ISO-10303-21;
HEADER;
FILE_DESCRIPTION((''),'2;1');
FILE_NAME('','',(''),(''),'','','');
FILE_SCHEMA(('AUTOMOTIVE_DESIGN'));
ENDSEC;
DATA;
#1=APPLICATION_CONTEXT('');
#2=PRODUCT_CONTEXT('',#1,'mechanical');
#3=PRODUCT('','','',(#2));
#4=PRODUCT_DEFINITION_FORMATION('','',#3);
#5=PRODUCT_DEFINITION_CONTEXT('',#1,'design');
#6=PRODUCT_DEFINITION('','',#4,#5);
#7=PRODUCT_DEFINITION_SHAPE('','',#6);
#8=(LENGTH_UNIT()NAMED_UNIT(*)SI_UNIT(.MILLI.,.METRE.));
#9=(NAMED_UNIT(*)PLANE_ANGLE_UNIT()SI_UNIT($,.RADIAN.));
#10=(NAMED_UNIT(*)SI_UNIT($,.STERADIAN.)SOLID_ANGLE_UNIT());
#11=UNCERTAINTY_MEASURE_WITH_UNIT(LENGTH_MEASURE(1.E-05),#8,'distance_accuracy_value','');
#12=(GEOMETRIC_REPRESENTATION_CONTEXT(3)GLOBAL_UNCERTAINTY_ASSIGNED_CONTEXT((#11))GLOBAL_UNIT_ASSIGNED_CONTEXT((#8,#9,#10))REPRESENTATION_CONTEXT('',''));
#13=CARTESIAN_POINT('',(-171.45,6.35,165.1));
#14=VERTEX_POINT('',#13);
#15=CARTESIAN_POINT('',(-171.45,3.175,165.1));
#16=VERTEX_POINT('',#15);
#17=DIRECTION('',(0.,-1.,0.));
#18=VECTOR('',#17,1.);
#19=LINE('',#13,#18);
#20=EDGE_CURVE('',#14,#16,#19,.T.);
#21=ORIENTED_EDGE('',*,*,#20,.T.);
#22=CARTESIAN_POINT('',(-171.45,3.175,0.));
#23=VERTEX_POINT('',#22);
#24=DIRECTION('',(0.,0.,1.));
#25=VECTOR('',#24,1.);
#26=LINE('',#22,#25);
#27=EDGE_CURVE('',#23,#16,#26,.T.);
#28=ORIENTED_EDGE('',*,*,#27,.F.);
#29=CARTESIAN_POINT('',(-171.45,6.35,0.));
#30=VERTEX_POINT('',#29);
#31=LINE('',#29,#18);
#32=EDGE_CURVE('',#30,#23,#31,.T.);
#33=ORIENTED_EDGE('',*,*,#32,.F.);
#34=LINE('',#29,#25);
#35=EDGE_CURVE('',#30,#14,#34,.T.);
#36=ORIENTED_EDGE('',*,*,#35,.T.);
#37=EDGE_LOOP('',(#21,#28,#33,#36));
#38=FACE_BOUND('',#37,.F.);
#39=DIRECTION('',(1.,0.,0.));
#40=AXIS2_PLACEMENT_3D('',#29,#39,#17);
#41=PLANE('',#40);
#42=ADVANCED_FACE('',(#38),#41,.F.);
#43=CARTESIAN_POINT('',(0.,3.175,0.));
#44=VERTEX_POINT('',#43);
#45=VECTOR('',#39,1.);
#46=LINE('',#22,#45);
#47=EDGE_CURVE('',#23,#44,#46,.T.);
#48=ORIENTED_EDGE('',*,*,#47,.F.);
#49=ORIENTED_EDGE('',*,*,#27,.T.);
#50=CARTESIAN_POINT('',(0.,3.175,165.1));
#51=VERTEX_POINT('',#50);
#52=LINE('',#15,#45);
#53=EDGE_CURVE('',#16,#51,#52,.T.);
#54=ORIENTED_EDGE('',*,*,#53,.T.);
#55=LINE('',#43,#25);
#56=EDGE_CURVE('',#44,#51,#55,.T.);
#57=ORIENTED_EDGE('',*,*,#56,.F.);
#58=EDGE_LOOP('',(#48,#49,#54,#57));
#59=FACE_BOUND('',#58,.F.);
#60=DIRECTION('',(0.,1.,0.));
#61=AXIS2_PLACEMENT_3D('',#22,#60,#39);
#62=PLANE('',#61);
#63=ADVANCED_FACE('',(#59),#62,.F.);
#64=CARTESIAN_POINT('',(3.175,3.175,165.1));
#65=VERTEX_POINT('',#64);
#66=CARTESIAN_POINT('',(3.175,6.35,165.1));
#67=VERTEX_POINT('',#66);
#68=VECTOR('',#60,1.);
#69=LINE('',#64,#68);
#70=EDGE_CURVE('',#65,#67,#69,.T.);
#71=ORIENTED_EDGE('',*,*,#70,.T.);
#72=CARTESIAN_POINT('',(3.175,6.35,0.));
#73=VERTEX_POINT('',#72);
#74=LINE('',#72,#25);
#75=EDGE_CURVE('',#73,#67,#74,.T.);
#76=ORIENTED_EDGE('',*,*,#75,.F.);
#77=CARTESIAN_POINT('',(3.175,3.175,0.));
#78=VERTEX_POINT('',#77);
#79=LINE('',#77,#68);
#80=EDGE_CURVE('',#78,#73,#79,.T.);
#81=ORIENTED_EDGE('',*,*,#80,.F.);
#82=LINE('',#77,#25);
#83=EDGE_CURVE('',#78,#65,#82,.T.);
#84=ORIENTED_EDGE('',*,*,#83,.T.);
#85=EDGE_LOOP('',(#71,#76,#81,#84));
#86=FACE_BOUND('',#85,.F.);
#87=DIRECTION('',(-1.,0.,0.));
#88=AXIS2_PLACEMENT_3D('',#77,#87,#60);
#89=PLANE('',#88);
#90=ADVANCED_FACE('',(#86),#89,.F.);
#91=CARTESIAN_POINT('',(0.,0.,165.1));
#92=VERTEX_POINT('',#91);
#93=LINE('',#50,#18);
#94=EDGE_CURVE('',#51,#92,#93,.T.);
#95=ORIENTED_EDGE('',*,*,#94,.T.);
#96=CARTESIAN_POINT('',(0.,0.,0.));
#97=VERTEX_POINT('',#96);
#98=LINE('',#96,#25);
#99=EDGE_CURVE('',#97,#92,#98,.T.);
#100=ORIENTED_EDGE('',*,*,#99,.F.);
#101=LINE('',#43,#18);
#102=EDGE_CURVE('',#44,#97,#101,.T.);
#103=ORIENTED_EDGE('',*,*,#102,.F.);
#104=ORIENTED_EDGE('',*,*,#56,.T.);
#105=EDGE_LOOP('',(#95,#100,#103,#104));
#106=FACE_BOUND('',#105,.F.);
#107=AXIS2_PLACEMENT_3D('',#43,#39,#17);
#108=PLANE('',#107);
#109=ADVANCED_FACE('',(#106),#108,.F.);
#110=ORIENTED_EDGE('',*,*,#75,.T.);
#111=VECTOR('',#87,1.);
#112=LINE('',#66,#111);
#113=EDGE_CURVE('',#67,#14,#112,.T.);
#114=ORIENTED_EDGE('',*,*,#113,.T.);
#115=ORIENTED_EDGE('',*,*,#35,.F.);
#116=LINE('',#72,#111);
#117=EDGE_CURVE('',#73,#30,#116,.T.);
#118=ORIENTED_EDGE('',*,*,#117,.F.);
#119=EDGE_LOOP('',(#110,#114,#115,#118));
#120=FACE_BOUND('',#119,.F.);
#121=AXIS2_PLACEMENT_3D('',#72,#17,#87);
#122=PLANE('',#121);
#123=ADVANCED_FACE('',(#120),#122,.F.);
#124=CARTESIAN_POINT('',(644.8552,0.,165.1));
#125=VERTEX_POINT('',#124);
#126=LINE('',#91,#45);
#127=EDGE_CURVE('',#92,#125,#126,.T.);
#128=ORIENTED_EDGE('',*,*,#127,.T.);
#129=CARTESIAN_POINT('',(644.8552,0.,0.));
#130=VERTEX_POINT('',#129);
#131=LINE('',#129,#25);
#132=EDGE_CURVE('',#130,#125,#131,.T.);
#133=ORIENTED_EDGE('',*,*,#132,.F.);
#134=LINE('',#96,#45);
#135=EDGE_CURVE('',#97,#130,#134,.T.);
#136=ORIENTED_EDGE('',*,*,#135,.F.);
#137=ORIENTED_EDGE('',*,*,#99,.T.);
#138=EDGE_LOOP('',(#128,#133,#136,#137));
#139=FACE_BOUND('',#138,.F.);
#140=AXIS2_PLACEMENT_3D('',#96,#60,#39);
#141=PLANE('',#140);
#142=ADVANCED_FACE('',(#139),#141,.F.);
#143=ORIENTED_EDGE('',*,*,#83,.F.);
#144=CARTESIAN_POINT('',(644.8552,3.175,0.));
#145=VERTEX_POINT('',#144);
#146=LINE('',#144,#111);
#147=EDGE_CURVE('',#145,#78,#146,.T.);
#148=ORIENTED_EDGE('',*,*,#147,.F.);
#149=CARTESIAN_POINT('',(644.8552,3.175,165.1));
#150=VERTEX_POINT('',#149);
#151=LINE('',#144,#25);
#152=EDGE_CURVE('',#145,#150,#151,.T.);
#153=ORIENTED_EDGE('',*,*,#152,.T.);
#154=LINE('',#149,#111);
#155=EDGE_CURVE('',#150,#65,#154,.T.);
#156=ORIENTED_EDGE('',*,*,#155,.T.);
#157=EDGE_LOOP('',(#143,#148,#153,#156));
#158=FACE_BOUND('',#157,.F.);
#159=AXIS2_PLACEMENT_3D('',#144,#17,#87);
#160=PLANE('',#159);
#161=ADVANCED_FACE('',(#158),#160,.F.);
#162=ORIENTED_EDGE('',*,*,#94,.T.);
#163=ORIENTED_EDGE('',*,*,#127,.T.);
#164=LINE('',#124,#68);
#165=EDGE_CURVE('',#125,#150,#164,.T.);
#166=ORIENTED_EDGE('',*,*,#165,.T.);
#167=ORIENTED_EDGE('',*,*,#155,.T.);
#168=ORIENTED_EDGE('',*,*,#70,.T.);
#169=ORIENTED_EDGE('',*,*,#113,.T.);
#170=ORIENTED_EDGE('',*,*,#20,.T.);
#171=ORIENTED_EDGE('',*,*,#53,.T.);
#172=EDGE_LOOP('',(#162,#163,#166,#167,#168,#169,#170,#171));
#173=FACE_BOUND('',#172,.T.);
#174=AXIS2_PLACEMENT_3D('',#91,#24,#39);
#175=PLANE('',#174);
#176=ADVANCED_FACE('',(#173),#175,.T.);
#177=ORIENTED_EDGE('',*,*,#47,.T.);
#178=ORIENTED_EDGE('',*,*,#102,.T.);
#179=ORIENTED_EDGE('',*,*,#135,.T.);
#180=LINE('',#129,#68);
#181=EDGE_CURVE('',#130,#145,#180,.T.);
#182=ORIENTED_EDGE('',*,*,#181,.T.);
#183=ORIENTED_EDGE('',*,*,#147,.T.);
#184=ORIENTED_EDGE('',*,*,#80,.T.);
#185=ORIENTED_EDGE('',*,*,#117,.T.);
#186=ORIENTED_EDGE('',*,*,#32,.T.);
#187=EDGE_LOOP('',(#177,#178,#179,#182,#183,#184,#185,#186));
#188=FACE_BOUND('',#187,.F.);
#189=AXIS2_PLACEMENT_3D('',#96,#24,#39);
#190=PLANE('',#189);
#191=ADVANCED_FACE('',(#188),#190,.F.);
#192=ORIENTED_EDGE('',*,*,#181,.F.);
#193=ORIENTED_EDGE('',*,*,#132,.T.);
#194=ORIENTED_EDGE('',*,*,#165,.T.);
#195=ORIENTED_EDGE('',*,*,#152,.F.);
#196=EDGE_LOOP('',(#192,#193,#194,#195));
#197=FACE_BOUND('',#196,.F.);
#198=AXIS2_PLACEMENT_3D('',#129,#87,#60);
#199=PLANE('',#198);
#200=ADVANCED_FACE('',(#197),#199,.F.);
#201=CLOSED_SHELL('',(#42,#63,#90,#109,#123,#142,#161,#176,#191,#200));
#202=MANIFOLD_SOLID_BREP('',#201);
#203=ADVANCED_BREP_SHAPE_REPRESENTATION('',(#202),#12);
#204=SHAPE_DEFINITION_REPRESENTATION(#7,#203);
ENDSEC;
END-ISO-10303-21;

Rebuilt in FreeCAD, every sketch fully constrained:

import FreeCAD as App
import Part
import Sketcher
from FreeCAD import Vector
Q = App.Units.Quantity

doc = App.newDocument("Part")
body = doc.addObject("PartDesign::Body", "Body")

# Sketch on XY plane
sketch1 = doc.addObject("Sketcher::SketchObject", "Sketch")
body.addObject(sketch1)
sketch1.AttachmentSupport = (doc.XY_Plane, [""])
sketch1.MapMode = "FlatFace"
sketch1.addGeometry(Part.LineSegment(Vector(0, 3.2, 0), Vector(0, 0, 0)), False)
sketch1.addGeometry(Part.LineSegment(Vector(0, 0, 0), Vector(644.9, 0, 0)), False)
sketch1.addGeometry(Part.LineSegment(Vector(644.9, 0, 0), Vector(644.9, 3.2, 0)), False)
sketch1.addGeometry(Part.LineSegment(Vector(644.9, 3.2, 0), Vector(3.2, 3.2, 0)), False)
sketch1.addGeometry(Part.LineSegment(Vector(3.2, 3.2, 0), Vector(3.2, 6.3, 0)), False)
sketch1.addGeometry(Part.LineSegment(Vector(3.2, 6.3, 0), Vector(-171.4, 6.3, 0)), False)
sketch1.addGeometry(Part.LineSegment(Vector(-171.4, 6.3, 0), Vector(-171.4, 3.2, 0)), False)
sketch1.addGeometry(Part.LineSegment(Vector(-171.4, 3.2, 0), Vector(0, 3.2, 0)), False)
sketch1.addConstraint(Sketcher.Constraint("Coincident", 0, 2, 1, 1))
sketch1.addConstraint(Sketcher.Constraint("Coincident", 1, 2, 2, 1))
sketch1.addConstraint(Sketcher.Constraint("Coincident", 2, 2, 3, 1))
sketch1.addConstraint(Sketcher.Constraint("Coincident", 3, 2, 4, 1))
sketch1.addConstraint(Sketcher.Constraint("Coincident", 4, 2, 5, 1))
sketch1.addConstraint(Sketcher.Constraint("Coincident", 5, 2, 6, 1))
sketch1.addConstraint(Sketcher.Constraint("Coincident", 6, 2, 7, 1))
sketch1.addConstraint(Sketcher.Constraint("Coincident", 7, 2, 0, 1))
sketch1.addConstraint(Sketcher.Constraint("Vertical", 0))
sketch1.addConstraint(Sketcher.Constraint("Horizontal", 1))
sketch1.addConstraint(Sketcher.Constraint("Vertical", 2))
sketch1.addConstraint(Sketcher.Constraint("Horizontal", 3))
sketch1.addConstraint(Sketcher.Constraint("Vertical", 4))
sketch1.addConstraint(Sketcher.Constraint("Horizontal", 5))
sketch1.addConstraint(Sketcher.Constraint("Vertical", 6))
sketch1.addConstraint(Sketcher.Constraint("Horizontal", 7))
sketch1.addConstraint(Sketcher.Constraint("Coincident", 0, 2, -1, 1))
sketch1.addConstraint(Sketcher.Constraint("Horizontal", 3, 2, 6, 2))
sketch1.addConstraint(Sketcher.Constraint("Equal", 2, 4))
sketch1.addConstraint(Sketcher.Constraint("DistanceX", 7, 1, 7, 2, Q("6.75 in")))
sketch1.addConstraint(Sketcher.Constraint("DistanceX", 1, 1, 1, 2, Q("25.388 in")))
sketch1.addConstraint(Sketcher.Constraint("DistanceY", 0, 2, 0, 1, Q("0.125 in")))
sketch1.addConstraint(Sketcher.Constraint("DistanceX", -1, 1, 3, 2, Q("0.125 in")))
pad1 = doc.addObject("PartDesign::Pad", "Pad")
body.addObject(pad1)
pad1.Profile = sketch1
pad1.Length = Q("6.5 in")

doc.recompute()
